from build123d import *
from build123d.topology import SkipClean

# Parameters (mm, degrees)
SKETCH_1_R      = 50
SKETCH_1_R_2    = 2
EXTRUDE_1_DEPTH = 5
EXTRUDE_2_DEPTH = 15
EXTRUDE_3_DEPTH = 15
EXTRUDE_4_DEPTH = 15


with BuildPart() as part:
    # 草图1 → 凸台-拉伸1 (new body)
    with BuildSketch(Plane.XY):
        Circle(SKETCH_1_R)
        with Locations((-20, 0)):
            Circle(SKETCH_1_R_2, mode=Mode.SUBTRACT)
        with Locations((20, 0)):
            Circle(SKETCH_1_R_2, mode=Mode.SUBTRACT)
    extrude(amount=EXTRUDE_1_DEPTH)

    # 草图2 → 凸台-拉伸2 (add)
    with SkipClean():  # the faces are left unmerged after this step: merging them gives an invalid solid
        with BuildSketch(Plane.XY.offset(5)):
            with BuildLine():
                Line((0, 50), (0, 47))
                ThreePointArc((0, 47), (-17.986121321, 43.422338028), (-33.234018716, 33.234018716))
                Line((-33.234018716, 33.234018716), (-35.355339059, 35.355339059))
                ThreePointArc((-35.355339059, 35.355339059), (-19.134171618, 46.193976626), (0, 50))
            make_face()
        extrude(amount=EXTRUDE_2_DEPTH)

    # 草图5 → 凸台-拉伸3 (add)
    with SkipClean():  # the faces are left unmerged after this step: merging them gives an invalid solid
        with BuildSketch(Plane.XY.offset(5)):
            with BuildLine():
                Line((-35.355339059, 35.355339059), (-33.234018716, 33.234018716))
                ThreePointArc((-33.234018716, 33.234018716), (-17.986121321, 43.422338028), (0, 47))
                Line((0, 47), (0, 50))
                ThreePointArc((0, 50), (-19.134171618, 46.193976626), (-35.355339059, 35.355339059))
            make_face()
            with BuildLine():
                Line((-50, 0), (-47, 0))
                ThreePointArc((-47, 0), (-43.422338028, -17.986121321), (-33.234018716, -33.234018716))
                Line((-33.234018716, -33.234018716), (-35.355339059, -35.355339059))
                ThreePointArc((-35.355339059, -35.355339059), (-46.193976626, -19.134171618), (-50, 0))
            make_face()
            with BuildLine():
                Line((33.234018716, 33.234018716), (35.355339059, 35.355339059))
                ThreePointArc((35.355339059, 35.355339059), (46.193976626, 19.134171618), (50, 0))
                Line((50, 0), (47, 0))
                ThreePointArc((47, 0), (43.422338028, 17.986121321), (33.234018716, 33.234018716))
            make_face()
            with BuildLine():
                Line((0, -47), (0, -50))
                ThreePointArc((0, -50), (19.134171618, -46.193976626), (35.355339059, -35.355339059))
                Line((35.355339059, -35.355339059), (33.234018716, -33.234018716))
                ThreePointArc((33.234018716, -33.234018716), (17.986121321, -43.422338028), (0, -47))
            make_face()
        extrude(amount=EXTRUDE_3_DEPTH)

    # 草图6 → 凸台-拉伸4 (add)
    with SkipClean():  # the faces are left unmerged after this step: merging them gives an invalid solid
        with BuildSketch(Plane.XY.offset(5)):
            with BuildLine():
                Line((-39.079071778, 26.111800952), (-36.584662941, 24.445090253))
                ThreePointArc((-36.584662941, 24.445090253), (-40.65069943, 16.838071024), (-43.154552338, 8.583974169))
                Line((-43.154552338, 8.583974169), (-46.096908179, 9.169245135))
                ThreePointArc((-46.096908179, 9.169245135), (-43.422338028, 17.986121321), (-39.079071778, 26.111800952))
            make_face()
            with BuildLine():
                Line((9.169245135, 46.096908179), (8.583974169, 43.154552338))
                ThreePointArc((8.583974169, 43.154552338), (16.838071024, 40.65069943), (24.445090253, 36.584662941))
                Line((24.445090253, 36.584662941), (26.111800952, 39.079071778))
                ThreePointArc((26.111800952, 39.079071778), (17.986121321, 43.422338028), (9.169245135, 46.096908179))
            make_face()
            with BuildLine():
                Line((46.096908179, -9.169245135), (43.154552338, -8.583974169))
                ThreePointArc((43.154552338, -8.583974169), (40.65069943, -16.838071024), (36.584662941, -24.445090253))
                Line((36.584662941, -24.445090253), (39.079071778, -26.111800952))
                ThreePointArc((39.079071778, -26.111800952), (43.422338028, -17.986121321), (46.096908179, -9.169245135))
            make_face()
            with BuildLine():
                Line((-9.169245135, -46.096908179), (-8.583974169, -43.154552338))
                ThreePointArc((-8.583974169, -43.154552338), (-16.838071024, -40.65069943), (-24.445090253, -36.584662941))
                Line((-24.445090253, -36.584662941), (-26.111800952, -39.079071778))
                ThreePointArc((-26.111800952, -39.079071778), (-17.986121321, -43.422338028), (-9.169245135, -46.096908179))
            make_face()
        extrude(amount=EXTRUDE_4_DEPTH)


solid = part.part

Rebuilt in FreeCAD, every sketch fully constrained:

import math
import FreeCAD as App
import Part
import Sketcher
Q = App.Units.Quantity

doc = App.newDocument("Part")
body = doc.addObject("PartDesign::Body", "Body")

# Sketch on XY plane
sketch1 = body.newObject("Sketcher::SketchObject", "Sketch")
sketch1.AttachmentSupport = (doc.getObject("XY_Plane"), [""])
sketch1.MapMode = "FlatFace"
sketch1.addGeometry([
    Part.Circle(App.Vector(0, 0, 0), App.Vector(0, 0, 1), 50),
    Part.Circle(App.Vector(-20, 0, 0), App.Vector(0, 0, 1), 2),
    Part.Circle(App.Vector(20, 0, 0), App.Vector(0, 0, 1), 2),
], False)
sketch1.addConstraint([
    Sketcher.Constraint("Coincident", 0, 3, -1, 1),
    Sketcher.Constraint("Equal", 1, 2),
    Sketcher.Constraint("Symmetric", 1, 3, 2, 3, -1, 1),
    Sketcher.Constraint("PointOnObject", 1, 3, -1),
    Sketcher.Constraint("Diameter", 0, Q("100 mm")),
    Sketcher.Constraint("Diameter", 1, Q("4 mm")),
    Sketcher.Constraint("DistanceX", 1, 3, -1, 1, Q("20 mm")),
])
pad1 = body.newObject("PartDesign::Pad", "Pad")
pad1.Profile = sketch1
pad1.Length = 5

# Sketch on XY plane
sketch2 = body.newObject("Sketcher::SketchObject", "Sketch001")
sketch2.AttachmentSupport = (doc.getObject("XY_Plane"), [""])
sketch2.MapMode = "FlatFace"
sketch2.AttachmentOffset = App.Placement(App.Vector(0, 0, 5), App.Rotation())
sketch2.addGeometry([
    Part.LineSegment(App.Vector(0, 47, 0), App.Vector(0, 50, 0)),
    Part.ArcOfCircle(Part.Circle(App.Vector(0, 0, 0), App.Vector(0, 0, 1), 50), math.radians(90), math.radians(135)),
    Part.LineSegment(App.Vector(-35.355339, 35.355339, 0), App.Vector(-33.234019, 33.234019, 0)),
    Part.ArcOfCircle(Part.Circle(App.Vector(0, 0, 0), App.Vector(0, 0, 1), 47), math.radians(90), math.radians(135)),
], False)
sketch2.addConstraint([
    Sketcher.Constraint("Coincident", 0, 2, 1, 1),
    Sketcher.Constraint("Coincident", 1, 2, 2, 1),
    Sketcher.Constraint("Coincident", 2, 2, 3, 2),
    Sketcher.Constraint("Coincident", 3, 1, 0, 1),
    Sketcher.Constraint("Vertical", 0),
    Sketcher.Constraint("Coincident", 1, 3, -1, 1),
    Sketcher.Constraint("Coincident", 3, 3, -1, 1),
    Sketcher.Constraint("PointOnObject", 0, 2, -2),
    Sketcher.Constraint("Radius", 1, Q("50 mm")),
    Sketcher.Constraint("Radius", 3, Q("47 mm")),
    Sketcher.Constraint("Angle", 2, Q("-45 deg")),
    Sketcher.Constraint("DistanceX", 1, 2, -1, 1, Q("35.355339 mm")),
])
pad2 = body.newObject("PartDesign::Pad", "Pad001")
pad2.Profile = sketch2
pad2.Length = 15

# Sketch on XY plane
sketch3 = body.newObject("Sketcher::SketchObject", "Sketch002")
sketch3.AttachmentSupport = (doc.getObject("XY_Plane"), [""])
sketch3.MapMode = "FlatFace"
sketch3.AttachmentOffset = App.Placement(App.Vector(0, 0, 5), App.Rotation())
sketch3.addGeometry([
    Part.LineSegment(App.Vector(-35.355339, 35.355339, 0), App.Vector(-33.234019, 33.234019, 0)),  # 0
    Part.ArcOfCircle(Part.Circle(App.Vector(0, 0, 0), App.Vector(0, 0, 1), 47), math.radians(90), math.radians(135)),  # 1
    Part.LineSegment(App.Vector(0, 47, 0), App.Vector(0, 50, 0)),  # 2
    Part.ArcOfCircle(Part.Circle(App.Vector(0, 0, 0), App.Vector(0, 0, 1), 50), math.radians(90), math.radians(135)),  # 3
    Part.LineSegment(App.Vector(-47, 0, 0), App.Vector(-50, 0, 0)),  # 4
    Part.ArcOfCircle(Part.Circle(App.Vector(0, 0, 0), App.Vector(0, 0, 1), 50), math.radians(180), math.radians(225)),  # 5
    Part.LineSegment(App.Vector(-35.355339, -35.355339, 0), App.Vector(-33.234019, -33.234019, 0)),  # 6
    Part.ArcOfCircle(Part.Circle(App.Vector(0, 0, 0), App.Vector(0, 0, 1), 47), math.radians(-180), math.radians(-135)),  # 7
    Part.LineSegment(App.Vector(35.355339, 35.355339, 0), App.Vector(33.234019, 33.234019, 0)),  # 8
    Part.ArcOfCircle(Part.Circle(App.Vector(0, 0, 0), App.Vector(0, 0, 1), 47), math.radians(0), math.radians(45)),  # 9
    Part.LineSegment(App.Vector(47, 0, 0), App.Vector(50, 0, 0)),  # 10
    Part.ArcOfCircle(Part.Circle(App.Vector(0, 0, 0), App.Vector(0, 0, 1), 50), math.radians(0), math.radians(45)),  # 11
    Part.LineSegment(App.Vector(0, -47, 0), App.Vector(0, -50, 0)),  # 12
    Part.ArcOfCircle(Part.Circle(App.Vector(0, 0, 0), App.Vector(0, 0, 1), 50), math.radians(-90), math.radians(-45)),  # 13
    Part.LineSegment(App.Vector(35.355339, -35.355339, 0), App.Vector(33.234019, -33.234019, 0)),  # 14
    Part.ArcOfCircle(Part.Circle(App.Vector(0, 0, 0), App.Vector(0, 0, 1), 47), math.radians(-90), math.radians(-45)),  # 15
], False)
sketch3.addConstraint([
    Sketcher.Constraint("Coincident", 0, 2, 1, 2),
    Sketcher.Constraint("Coincident", 1, 1, 2, 1),
    Sketcher.Constraint("Coincident", 2, 2, 3, 1),
    Sketcher.Constraint("Coincident", 3, 2, 0, 1),
    Sketcher.Constraint("Coincident", 4, 2, 5, 1),
    Sketcher.Constraint("Coincident", 5, 2, 6, 1),
    Sketcher.Constraint("Coincident", 6, 2, 7, 2),
    Sketcher.Constraint("Coincident", 7, 1, 4, 1),
    Sketcher.Constraint("Coincident", 8, 2, 9, 2),
    Sketcher.Constraint("Coincident", 9, 1, 10, 1),
    Sketcher.Constraint("Coincident", 10, 2, 11, 1),
    Sketcher.Constraint("Coincident", 11, 2, 8, 1),
    Sketcher.Constraint("Coincident", 12, 2, 13, 1),
    Sketcher.Constraint("Coincident", 13, 2, 14, 1),
    Sketcher.Constraint("Coincident", 14, 2, 15, 2),
    Sketcher.Constraint("Coincident", 15, 1, 12, 1),
    Sketcher.Constraint("Vertical", 2),
    Sketcher.Constraint("Horizontal", 4),
    Sketcher.Constraint("Horizontal", 10),
    Sketcher.Constraint("Vertical", 12),
    Sketcher.Constraint("Coincident", 1, 3, -1, 1),
    Sketcher.Constraint("Coincident", 3, 3, -1, 1),
    Sketcher.Constraint("Coincident", 5, 3, -1, 1),
    Sketcher.Constraint("Coincident", 7, 3, -1, 1),
    Sketcher.Constraint("Coincident", 9, 3, -1, 1),
    Sketcher.Constraint("Coincident", 11, 3, -1, 1),
    Sketcher.Constraint("Coincident", 13, 3, -1, 1),
    Sketcher.Constraint("Coincident", 15, 3, -1, 1),
    Sketcher.Constraint("Equal", 3, 5),
    Sketcher.Constraint("Equal", 1, 7),
    Sketcher.Constraint("Equal", 7, 9),
    Sketcher.Constraint("Equal", 5, 11),
    Sketcher.Constraint("Equal", 11, 13),
    Sketcher.Constraint("Equal", 9, 15),
    Sketcher.Constraint("PointOnObject", 1, 1, -2),
    Sketcher.Constraint("PointOnObject", 4, 2, -1),
    Sketcher.Constraint("PointOnObject", 9, 1, -1),
    Sketcher.Constraint("PointOnObject", 12, 2, -2),
    Sketcher.Constraint("Perpendicular", 0, 6),
    Sketcher.Constraint("Parallel", 6, 8),
    Sketcher.Constraint("Perpendicular", 8, 14),
    Sketcher.Constraint("Horizontal", 0, 2, 8, 2),
    Sketcher.Constraint("Horizontal", 3, 2, 11, 2),
    Sketcher.Constraint("Horizontal", 5, 2, 13, 2),
    Sketcher.Constraint("Vertical", 3, 2, 5, 2),
    Sketcher.Constraint("Radius", 1, Q("47 mm")),
    Sketcher.Constraint("Radius", 3, Q("50 mm")),
    Sketcher.Constraint("DistanceX", 0, 2, -1, 1, Q("33.234019 mm")),
])
pad3 = body.newObject("PartDesign::Pad", "Pad002")
pad3.Profile = sketch3
pad3.Length = 15

# Sketch on XY plane
sketch4 = body.newObject("Sketcher::SketchObject", "Sketch003")
sketch4.AttachmentSupport = (doc.getObject("XY_Plane"), [""])
sketch4.MapMode = "FlatFace"
sketch4.AttachmentOffset = App.Placement(App.Vector(0, 0, 5), App.Rotation())
sketch4.addGeometry([
    Part.LineSegment(App.Vector(-36.584663, 24.44509, 0), App.Vector(-39.079072, 26.111801, 0)),  # 0
    Part.ArcOfCircle(Part.Circle(App.Vector(0, 0, 0), App.Vector(0, 0, 1), 47), math.radians(146.25), math.radians(168.75)),  # 1
    Part.LineSegment(App.Vector(-46.096908, 9.169245, 0), App.Vector(-43.154552, 8.583974, 0)),  # 2
    Part.ArcOfCircle(Part.Circle(App.Vector(0, 0, 0), App.Vector(0, 0, 1), 44), math.radians(146.25), math.radians(168.75)),  # 3
    Part.LineSegment(App.Vector(9.169245, 46.096908, 0), App.Vector(8.583974, 43.154552, 0)),  # 4
    Part.ArcOfCircle(Part.Circle(App.Vector(0, 0, 0), App.Vector(0, 0, 1), 44), math.radians(56.25), math.radians(78.75)),  # 5
    Part.LineSegment(App.Vector(24.44509, 36.584663, 0), App.Vector(26.111801, 39.079072, 0)),  # 6
    Part.ArcOfCircle(Part.Circle(App.Vector(0, 0, 0), App.Vector(0, 0, 1), 47), math.radians(56.25), math.radians(78.75)),  # 7
    Part.LineSegment(App.Vector(46.096908, -9.169245, 0), App.Vector(43.154552, -8.583974, 0)),  # 8
    Part.ArcOfCircle(Part.Circle(App.Vector(0, 0, 0), App.Vector(0, 0, 1), 44), math.radians(-33.75), math.radians(-11.25)),  # 9
    Part.LineSegment(App.Vector(36.584663, -24.44509, 0), App.Vector(39.079072, -26.111801, 0)),  # 10
    Part.ArcOfCircle(Part.Circle(App.Vector(0, 0, 0), App.Vector(0, 0, 1), 47), math.radians(-33.75), math.radians(-11.25)),  # 11
    Part.LineSegment(App.Vector(-9.169245, -46.096908, 0), App.Vector(-8.583974, -43.154552, 0)),  # 12
    Part.ArcOfCircle(Part.Circle(App.Vector(0, 0, 0), App.Vector(0, 0, 1), 44), math.radians(-123.75), math.radians(-101.25)),  # 13
    Part.LineSegment(App.Vector(-24.44509, -36.584663, 0), App.Vector(-26.111801, -39.079072, 0)),  # 14
    Part.ArcOfCircle(Part.Circle(App.Vector(0, 0, 0), App.Vector(0, 0, 1), 47), math.radians(-123.75), math.radians(-101.25)),  # 15
], False)
sketch4.addConstraint([
    Sketcher.Constraint("Coincident", 0, 2, 1, 1),
    Sketcher.Constraint("Coincident", 1, 2, 2, 1),
    Sketcher.Constraint("Coincident", 2, 2, 3, 2),
    Sketcher.Constraint("Coincident", 3, 1, 0, 1),
    Sketcher.Constraint("Coincident", 4, 2, 5, 2),
    Sketcher.Constraint("Coincident", 5, 1, 6, 1),
    Sketcher.Constraint("Coincident", 6, 2, 7, 1),
    Sketcher.Constraint("Coincident", 7, 2, 4, 1),
    Sketcher.Constraint("Coincident", 8, 2, 9, 2),
    Sketcher.Constraint("Coincident", 9, 1, 10, 1),
    Sketcher.Constraint("Coincident", 10, 2, 11, 1),
    Sketcher.Constraint("Coincident", 11, 2, 8, 1),
    Sketcher.Constraint("Coincident", 12, 2, 13, 2),
    Sketcher.Constraint("Coincident", 13, 1, 14, 1),
    Sketcher.Constraint("Coincident", 14, 2, 15, 1),
    Sketcher.Constraint("Coincident", 15, 2, 12, 1),
    Sketcher.Constraint("Coincident", 1, 3, -1, 1),
    Sketcher.Constraint("Coincident", 3, 3, -1, 1),
    Sketcher.Constraint("Coincident", 5, 3, -1, 1),
    Sketcher.Constraint("Coincident", 7, 3, -1, 1),
    Sketcher.Constraint("Coincident", 9, 3, -1, 1),
    Sketcher.Constraint("Coincident", 11, 3, -1, 1),
    Sketcher.Constraint("Coincident", 13, 3, -1, 1),
    Sketcher.Constraint("Coincident", 15, 3, -1, 1),
    Sketcher.Constraint("Equal", 3, 5),
    Sketcher.Constraint("Equal", 1, 7),
    Sketcher.Constraint("Equal", 5, 9),
    Sketcher.Constraint("Equal", 7, 11),
    Sketcher.Constraint("Equal", 9, 13),
    Sketcher.Constraint("Equal", 11, 15),
    Sketcher.Constraint("Perpendicular", 2, 4),
    Sketcher.Constraint("Perpendicular", 0, 6),
    Sketcher.Constraint("Perpendicular", 4, 8),
    Sketcher.Constraint("Perpendicular", 6, 10),
    Sketcher.Constraint("Perpendicular", 8, 12),
    Sketcher.Constraint("Perpendicular", 10, 14),
    Sketcher.Constraint("Radius", 1, Q("47 mm")),
    Sketcher.Constraint("Radius", 3, Q("44 mm")),
    Sketcher.Constraint("Angle", 0, Q("146.25 deg")),
    Sketcher.Constraint("Angle", 2, Q("-11.25 deg")),
    Sketcher.Constraint("DistanceY", -1, 1, 0, 2, Q("26.111801 mm")),
    Sketcher.Constraint("DistanceX", -1, 1, 6, 2, Q("26.111801 mm")),
    Sketcher.Constraint("DistanceY", 10, 2, -1, 1, Q("26.111801 mm")),
    Sketcher.Constraint("DistanceX", 14, 2, -1, 1, Q("26.111801 mm")),
    Sketcher.Constraint("DistanceX", 1, 2, -1, 1, Q("46.096908 mm")),
    Sketcher.Constraint("DistanceY", -1, 1, 7, 2, Q("46.096908 mm")),
    Sketcher.Constraint("DistanceX", -1, 1, 11, 2, Q("46.096908 mm")),
    Sketcher.Constraint("DistanceY", 15, 2, -1, 1, Q("46.096908 mm")),
])
pad4 = body.newObject("PartDesign::Pad", "Pad003")
pad4.Profile = sketch4
pad4.Length = 15

doc.recompute()
